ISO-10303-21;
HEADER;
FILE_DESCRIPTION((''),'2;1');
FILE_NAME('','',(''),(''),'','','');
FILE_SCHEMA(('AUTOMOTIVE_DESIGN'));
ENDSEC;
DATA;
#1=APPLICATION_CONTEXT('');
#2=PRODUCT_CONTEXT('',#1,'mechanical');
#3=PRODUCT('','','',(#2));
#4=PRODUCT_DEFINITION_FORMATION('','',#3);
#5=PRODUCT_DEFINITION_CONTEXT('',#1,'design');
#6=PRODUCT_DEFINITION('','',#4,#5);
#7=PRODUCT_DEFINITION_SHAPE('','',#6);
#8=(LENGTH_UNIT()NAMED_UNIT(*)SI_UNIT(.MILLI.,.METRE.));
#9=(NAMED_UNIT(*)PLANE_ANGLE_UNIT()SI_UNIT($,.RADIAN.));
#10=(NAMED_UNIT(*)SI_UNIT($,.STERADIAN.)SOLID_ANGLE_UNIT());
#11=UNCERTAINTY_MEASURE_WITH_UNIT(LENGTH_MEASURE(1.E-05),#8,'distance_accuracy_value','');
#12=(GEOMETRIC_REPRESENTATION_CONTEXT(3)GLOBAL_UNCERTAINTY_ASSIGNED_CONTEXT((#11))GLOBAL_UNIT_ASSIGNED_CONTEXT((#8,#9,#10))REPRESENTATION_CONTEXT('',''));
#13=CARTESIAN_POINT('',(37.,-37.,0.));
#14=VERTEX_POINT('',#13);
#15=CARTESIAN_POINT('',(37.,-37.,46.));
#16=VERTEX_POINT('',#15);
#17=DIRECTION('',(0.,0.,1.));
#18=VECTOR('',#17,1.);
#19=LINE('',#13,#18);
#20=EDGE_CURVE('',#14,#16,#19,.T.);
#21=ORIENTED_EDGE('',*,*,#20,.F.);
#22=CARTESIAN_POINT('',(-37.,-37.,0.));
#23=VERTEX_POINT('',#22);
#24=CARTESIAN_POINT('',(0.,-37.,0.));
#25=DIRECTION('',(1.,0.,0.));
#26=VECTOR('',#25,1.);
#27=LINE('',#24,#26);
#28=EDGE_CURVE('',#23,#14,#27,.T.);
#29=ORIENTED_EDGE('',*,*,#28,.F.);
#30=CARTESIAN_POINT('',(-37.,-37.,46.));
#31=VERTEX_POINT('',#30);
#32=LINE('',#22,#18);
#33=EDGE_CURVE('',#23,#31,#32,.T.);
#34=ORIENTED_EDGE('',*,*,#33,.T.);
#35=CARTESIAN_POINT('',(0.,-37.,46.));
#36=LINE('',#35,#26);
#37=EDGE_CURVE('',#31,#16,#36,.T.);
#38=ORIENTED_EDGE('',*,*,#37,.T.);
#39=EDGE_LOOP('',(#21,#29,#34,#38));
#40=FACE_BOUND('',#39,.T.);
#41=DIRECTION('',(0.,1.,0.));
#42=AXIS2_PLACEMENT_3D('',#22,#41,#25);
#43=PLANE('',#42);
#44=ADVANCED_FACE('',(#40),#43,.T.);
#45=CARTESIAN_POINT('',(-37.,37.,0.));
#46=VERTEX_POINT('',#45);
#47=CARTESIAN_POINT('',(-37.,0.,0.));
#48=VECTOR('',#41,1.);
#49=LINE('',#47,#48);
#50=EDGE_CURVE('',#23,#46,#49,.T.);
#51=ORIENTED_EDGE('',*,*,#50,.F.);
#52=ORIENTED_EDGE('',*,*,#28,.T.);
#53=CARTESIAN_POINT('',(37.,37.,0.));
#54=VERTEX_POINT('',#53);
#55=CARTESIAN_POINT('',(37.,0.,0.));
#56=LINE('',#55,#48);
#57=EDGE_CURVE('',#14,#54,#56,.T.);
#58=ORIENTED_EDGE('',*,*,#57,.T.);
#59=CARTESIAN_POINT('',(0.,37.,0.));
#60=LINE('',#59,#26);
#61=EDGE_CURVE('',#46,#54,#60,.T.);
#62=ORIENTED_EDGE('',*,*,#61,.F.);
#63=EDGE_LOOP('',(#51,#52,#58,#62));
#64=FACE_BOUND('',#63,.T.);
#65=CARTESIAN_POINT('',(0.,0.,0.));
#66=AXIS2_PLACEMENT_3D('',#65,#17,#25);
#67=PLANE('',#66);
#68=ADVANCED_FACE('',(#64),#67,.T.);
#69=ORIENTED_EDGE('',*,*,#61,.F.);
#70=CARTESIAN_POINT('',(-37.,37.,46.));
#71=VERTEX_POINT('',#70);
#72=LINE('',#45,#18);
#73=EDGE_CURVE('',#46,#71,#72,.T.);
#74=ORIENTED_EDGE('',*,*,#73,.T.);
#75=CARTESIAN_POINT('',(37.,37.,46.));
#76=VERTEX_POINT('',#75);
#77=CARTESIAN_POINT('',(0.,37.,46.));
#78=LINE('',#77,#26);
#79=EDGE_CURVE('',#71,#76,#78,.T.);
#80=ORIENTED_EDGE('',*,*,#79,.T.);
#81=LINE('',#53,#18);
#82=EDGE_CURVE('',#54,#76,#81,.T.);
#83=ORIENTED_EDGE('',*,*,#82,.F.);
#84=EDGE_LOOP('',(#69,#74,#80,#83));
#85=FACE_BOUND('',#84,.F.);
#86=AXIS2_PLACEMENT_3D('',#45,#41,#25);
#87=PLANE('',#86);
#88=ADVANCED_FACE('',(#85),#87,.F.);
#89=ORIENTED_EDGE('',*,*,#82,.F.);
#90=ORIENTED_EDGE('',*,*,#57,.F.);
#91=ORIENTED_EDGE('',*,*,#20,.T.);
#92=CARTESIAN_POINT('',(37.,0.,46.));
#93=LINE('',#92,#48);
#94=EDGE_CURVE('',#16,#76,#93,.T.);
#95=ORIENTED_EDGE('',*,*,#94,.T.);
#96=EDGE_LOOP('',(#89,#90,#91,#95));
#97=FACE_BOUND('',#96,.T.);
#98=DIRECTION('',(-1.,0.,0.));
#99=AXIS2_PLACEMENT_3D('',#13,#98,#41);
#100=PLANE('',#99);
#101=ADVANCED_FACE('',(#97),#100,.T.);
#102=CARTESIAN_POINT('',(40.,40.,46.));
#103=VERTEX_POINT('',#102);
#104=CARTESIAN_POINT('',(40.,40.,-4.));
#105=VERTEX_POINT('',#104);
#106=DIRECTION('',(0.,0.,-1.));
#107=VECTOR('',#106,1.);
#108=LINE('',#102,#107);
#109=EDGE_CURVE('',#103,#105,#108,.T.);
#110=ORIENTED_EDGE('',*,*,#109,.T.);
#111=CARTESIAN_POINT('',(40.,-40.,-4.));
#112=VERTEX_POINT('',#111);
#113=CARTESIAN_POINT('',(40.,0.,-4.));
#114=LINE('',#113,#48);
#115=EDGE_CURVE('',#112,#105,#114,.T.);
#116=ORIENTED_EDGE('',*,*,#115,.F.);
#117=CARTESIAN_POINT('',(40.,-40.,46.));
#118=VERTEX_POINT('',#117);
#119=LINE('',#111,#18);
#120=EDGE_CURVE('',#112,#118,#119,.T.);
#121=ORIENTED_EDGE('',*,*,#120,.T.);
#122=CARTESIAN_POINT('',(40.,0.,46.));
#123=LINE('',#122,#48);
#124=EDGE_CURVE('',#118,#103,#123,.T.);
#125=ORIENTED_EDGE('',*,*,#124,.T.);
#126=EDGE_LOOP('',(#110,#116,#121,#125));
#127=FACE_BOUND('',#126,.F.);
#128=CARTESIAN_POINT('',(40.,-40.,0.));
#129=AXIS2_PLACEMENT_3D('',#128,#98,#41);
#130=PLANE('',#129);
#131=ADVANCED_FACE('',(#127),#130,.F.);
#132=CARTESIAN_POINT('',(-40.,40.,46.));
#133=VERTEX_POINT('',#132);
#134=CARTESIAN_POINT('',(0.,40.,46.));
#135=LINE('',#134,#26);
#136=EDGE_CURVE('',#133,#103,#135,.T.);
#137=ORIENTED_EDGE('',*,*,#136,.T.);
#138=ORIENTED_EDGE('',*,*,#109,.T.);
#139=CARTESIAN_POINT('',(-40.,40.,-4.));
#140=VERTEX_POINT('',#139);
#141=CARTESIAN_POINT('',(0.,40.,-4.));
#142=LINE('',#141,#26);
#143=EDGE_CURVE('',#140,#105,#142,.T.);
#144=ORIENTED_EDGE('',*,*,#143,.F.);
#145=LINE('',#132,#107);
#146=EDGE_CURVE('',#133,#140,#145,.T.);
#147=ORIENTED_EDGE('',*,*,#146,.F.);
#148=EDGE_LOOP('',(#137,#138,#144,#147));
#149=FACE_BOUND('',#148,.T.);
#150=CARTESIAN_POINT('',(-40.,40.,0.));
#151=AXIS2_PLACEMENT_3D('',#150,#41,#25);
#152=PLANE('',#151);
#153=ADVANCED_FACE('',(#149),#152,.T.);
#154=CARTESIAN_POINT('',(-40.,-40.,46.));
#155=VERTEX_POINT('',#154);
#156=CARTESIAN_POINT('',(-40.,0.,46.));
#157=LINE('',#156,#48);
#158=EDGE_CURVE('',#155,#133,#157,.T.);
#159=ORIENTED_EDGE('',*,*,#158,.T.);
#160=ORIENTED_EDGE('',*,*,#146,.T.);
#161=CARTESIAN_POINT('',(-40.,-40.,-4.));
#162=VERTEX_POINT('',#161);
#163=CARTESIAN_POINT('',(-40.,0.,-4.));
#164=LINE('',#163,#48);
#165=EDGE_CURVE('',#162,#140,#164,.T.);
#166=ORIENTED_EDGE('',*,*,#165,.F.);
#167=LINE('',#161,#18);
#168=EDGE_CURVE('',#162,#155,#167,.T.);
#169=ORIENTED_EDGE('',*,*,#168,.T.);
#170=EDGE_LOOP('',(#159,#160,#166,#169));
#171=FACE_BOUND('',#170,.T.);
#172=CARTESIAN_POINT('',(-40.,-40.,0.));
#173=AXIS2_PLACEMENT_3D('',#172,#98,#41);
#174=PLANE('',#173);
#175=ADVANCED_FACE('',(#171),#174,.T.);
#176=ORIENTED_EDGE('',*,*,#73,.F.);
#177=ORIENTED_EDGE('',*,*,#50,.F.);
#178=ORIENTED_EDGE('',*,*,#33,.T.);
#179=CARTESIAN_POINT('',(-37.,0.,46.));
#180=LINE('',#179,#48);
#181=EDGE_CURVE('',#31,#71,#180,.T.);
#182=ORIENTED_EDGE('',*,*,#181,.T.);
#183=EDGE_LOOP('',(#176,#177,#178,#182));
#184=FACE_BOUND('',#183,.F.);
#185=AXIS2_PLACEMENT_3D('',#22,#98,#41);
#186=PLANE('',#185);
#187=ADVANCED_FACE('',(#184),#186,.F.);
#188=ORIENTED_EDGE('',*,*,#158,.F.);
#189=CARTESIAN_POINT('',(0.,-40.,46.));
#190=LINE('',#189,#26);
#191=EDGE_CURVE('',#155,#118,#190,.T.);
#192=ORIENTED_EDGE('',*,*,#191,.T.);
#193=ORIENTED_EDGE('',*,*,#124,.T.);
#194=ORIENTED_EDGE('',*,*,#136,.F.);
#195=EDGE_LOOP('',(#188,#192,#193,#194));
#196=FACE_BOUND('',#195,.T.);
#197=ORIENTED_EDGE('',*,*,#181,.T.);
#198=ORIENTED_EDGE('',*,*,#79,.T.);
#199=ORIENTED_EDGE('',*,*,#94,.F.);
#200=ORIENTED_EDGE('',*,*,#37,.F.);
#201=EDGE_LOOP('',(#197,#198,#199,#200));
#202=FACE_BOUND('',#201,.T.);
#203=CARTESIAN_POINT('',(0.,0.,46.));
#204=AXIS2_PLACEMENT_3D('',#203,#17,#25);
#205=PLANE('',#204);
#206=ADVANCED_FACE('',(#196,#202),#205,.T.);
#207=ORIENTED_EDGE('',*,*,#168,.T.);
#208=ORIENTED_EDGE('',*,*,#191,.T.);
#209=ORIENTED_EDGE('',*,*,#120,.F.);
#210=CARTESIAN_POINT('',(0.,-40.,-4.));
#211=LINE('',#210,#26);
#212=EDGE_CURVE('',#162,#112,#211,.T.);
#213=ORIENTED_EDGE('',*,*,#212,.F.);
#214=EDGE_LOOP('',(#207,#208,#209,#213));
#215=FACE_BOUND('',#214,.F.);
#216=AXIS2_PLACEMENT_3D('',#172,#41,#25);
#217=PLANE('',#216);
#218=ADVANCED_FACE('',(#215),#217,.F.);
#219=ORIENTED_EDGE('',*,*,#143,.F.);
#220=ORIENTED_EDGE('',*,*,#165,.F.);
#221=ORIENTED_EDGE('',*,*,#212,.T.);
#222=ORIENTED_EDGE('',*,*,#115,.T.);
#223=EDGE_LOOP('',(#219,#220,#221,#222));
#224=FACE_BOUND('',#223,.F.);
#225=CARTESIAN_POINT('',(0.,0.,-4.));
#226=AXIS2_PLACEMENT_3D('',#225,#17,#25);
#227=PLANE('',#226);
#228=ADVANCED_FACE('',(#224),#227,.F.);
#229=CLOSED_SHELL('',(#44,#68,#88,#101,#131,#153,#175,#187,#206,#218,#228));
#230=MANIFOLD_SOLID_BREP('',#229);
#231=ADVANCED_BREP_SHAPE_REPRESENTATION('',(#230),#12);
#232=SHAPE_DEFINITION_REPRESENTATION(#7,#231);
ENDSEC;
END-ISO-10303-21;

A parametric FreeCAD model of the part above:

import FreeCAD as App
import Part
import Sketcher

V = App.Vector

doc = App.newDocument("Part")
body = doc.addObject("PartDesign::Body", "Body")

# Sketch on XY plane
sketch1 = body.newObject("Sketcher::SketchObject", "Sketch")
sketch1.AttachmentSupport = (doc.getObject("XY_Plane"), [""])
sketch1.MapMode = "FlatFace"
sketch1.addGeometry([
    Part.LineSegment(V(-40, 40, 0), V(-40, -40, 0)),
    Part.LineSegment(V(-40, -40, 0), V(40, -40, 0)),
    Part.LineSegment(V(40, -40, 0), V(40, 40, 0)),
    Part.LineSegment(V(40, 40, 0), V(-40, 40, 0)),
], False)
sketch1.addConstraint([
    Sketcher.Constraint("Coincident", 0, 2, 1, 1),
    Sketcher.Constraint("Coincident", 1, 2, 2, 1),
    Sketcher.Constraint("Coincident", 2, 2, 3, 1),
    Sketcher.Constraint("Coincident", 3, 2, 0, 1),
    Sketcher.Constraint("Vertical", 0),
    Sketcher.Constraint("Horizontal", 1),
    Sketcher.Constraint("Vertical", 2),
    Sketcher.Constraint("Horizontal", 3),
    Sketcher.Constraint("Symmetric", 0, 2, 2, 2, -1, 1),
    Sketcher.Constraint("Equal", 3, 0),
    Sketcher.Constraint("DistanceX", 1, 1, 1, 2, 80.0),
])
pad1 = body.newObject("PartDesign::Pad", "Pad")
pad1.Profile = sketch1
pad1.Length = 4
pad1.Reversed = True

# Sketch on XY plane
sketch2 = body.newObject("Sketcher::SketchObject", "Sketch001")
sketch2.AttachmentSupport = (doc.getObject("XY_Plane"), [""])
sketch2.MapMode = "FlatFace"
sketch2.addGeometry([
    Part.LineSegment(V(-40, 40, 0), V(-40, -40, 0)),  # 0
    Part.LineSegment(V(-40, -40, 0), V(40, -40, 0)),  # 1
    Part.LineSegment(V(40, -40, 0), V(40, 40, 0)),  # 2
    Part.LineSegment(V(40, 40, 0), V(-40, 40, 0)),  # 3
    Part.LineSegment(V(37, -37, 0), V(-37, -37, 0)),  # 4
    Part.LineSegment(V(-37, -37, 0), V(-37, 37, 0)),  # 5
    Part.LineSegment(V(-37, 37, 0), V(37, 37, 0)),  # 6
    Part.LineSegment(V(37, 37, 0), V(37, -37, 0)),  # 7
], False)
sketch2.addConstraint([
    Sketcher.Constraint("Coincident", 0, 2, 1, 1),
    Sketcher.Constraint("Coincident", 1, 2, 2, 1),
    Sketcher.Constraint("Coincident", 2, 2, 3, 1),
    Sketcher.Constraint("Coincident", 3, 2, 0, 1),
    Sketcher.Constraint("Coincident", 4, 2, 5, 1),
    Sketcher.Constraint("Coincident", 5, 2, 6, 1),
    Sketcher.Constraint("Coincident", 6, 2, 7, 1),
    Sketcher.Constraint("Coincident", 7, 2, 4, 1),
    Sketcher.Constraint("Vertical", 0),
    Sketcher.Constraint("Horizontal", 1),
    Sketcher.Constraint("Vertical", 2),
    Sketcher.Constraint("Horizontal", 3),
    Sketcher.Constraint("Horizontal", 4),
    Sketcher.Constraint("Vertical", 5),
    Sketcher.Constraint("Horizontal", 6),
    Sketcher.Constraint("Vertical", 7),
    Sketcher.Constraint("Symmetric", 0, 2, 2, 2, -1, 1),
    Sketcher.Constraint("Symmetric", 4, 2, 6, 2, -1, 1),
    Sketcher.Constraint("Equal", 3, 0),
    Sketcher.Constraint("Equal", 6, 5),
    Sketcher.Constraint("DistanceX", 1, 1, 1, 2, 80.0),
    Sketcher.Constraint("DistanceX", 4, 2, 4, 1, 74.0),
])
pad2 = body.newObject("PartDesign::Pad", "Pad001")
pad2.Profile = sketch2
pad2.Length = 46

doc.recompute()
